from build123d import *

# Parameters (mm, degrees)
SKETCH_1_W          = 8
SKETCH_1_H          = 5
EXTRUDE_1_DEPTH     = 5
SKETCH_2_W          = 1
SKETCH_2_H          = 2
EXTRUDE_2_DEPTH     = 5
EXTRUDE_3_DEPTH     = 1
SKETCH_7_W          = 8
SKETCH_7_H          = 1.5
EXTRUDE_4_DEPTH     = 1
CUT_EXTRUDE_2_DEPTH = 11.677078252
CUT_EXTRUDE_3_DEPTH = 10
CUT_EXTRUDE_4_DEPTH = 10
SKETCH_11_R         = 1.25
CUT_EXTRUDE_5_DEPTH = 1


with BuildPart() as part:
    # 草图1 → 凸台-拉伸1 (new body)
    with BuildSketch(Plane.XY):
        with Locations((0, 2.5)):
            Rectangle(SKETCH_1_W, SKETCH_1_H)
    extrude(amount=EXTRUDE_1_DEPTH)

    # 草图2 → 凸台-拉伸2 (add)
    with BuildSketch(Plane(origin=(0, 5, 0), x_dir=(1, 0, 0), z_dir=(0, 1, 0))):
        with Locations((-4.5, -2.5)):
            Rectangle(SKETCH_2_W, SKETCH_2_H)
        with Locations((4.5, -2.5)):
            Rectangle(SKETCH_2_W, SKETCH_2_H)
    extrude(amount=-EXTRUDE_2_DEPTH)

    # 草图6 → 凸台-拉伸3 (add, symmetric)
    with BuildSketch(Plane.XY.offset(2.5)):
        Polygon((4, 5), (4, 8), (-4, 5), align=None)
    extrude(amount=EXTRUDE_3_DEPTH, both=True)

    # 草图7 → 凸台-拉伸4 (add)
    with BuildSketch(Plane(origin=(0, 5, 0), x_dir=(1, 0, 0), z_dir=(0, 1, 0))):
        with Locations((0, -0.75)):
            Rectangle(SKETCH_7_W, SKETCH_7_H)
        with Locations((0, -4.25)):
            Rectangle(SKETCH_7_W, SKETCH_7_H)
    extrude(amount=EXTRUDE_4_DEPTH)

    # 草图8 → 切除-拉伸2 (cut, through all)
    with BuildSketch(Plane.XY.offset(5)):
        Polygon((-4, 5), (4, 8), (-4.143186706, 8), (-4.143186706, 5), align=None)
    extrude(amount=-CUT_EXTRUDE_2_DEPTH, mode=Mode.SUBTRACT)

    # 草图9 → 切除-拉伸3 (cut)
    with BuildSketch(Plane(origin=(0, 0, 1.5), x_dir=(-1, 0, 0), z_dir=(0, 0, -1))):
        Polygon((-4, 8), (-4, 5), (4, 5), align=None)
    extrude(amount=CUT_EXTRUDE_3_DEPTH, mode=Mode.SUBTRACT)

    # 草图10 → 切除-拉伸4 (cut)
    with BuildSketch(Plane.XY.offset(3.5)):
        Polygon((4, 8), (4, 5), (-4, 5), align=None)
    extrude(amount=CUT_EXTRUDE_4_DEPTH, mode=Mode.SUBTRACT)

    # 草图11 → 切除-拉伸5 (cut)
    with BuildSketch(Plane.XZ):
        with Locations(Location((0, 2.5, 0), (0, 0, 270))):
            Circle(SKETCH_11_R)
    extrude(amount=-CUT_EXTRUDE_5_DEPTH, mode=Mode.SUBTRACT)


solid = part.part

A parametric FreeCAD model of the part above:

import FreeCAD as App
import Part
import Sketcher
Q = App.Units.Quantity

doc = App.newDocument("Part")
params = doc.addObject("Spreadsheet::Sheet", "Params")
for row, (alias, value) in enumerate([
    ("sketch1_width", "8 mm"),
    ("sketch1_height", "5 mm"),
    ("pad1_length", "5 mm"),
    ("sketch2_width", "1 mm"),
    ("sketch2_height", "2 mm"),
    ("pad2_length", "5 mm"),
    ("sketch3_width", "8 mm"),
    ("sketch3_height", "3 mm"),
    ("pad3_length", "2 mm"),
    ("sketch4_width", "8 mm"),
    ("sketch4_height", "1.5 mm"),
    ("pad4_length", "1 mm"),
    ("sketch5_height", "3 mm"),
    ("sketch6_width", "8 mm"),
    ("sketch6_height", "3 mm"),
    ("pocket2_length", "10 mm"),
    ("sketch7_width", "8 mm"),
    ("sketch7_height", "3 mm"),
    ("pocket3_length", "10 mm"),
    ("sketch8_diameter", "2.5 mm"),
    ("pocket4_length", "1 mm"),
], start=1):
    params.set(f"A{row}", alias)
    params.set(f"B{row}", "=" + value)
    params.setAlias(f"B{row}", alias)

body = doc.addObject("PartDesign::Body", "Body")

sketch1 = doc.addObject("Sketcher::SketchObject", "Sketch")
body.addObject(sketch1)
sketch1.AttachmentSupport = (doc.XY_Plane, [""])
sketch1.MapMode = "FlatFace"
sketch1.addGeometry([
    Part.LineSegment(App.Vector(-4, 5, 0), App.Vector(-4, 0, 0)),
    Part.LineSegment(App.Vector(-4, 0, 0), App.Vector(4, 0, 0)),
    Part.LineSegment(App.Vector(4, 0, 0), App.Vector(4, 5, 0)),
    Part.LineSegment(App.Vector(4, 5, 0), App.Vector(-4, 5, 0)),
], False)
sketch1.addConstraint([
    Sketcher.Constraint("Coincident", 0, 2, 1, 1),
    Sketcher.Constraint("Coincident", 1, 2, 2, 1),
    Sketcher.Constraint("Coincident", 2, 2, 3, 1),
    Sketcher.Constraint("Coincident", 3, 2, 0, 1),
    Sketcher.Constraint("Vertical", 0),
    Sketcher.Constraint("Horizontal", 1),
    Sketcher.Constraint("Vertical", 2),
    Sketcher.Constraint("Horizontal", 3),
    Sketcher.Constraint("Symmetric", 0, 2, 1, 2, -1, 1),
    Sketcher.Constraint("DistanceX", 1, 1, 1, 2, Q("8 mm")),
    Sketcher.Constraint("DistanceY", 0, 2, 0, 1, Q("5 mm")),
])
sketch1.setExpression("Constraints[9]", "Params.sketch1_width")
sketch1.setExpression("Constraints[10]", "Params.sketch1_height")
pad1 = doc.addObject("PartDesign::Pad", "Pad")
body.addObject(pad1)
pad1.Profile = sketch1
pad1.setExpression("Length", "Params.pad1_length")

sketch2 = doc.addObject("Sketcher::SketchObject", "Sketch001")
body.addObject(sketch2)
sketch2.AttachmentSupport = (doc.XZ_Plane, [""])
sketch2.MapMode = "FlatFace"
sketch2.AttachmentOffset = App.Placement(App.Vector(0, 0, -5), App.Rotation())
sketch2.addGeometry([
    Part.LineSegment(App.Vector(-5, 1.5, 0), App.Vector(-5, 3.5, 0)),
    Part.LineSegment(App.Vector(-5, 3.5, 0), App.Vector(-4, 3.5, 0)),
    Part.LineSegment(App.Vector(-4, 3.5, 0), App.Vector(-4, 1.5, 0)),
    Part.LineSegment(App.Vector(-4, 1.5, 0), App.Vector(-5, 1.5, 0)),
    Part.LineSegment(App.Vector(4, 1.5, 0), App.Vector(4, 3.5, 0)),
    Part.LineSegment(App.Vector(4, 3.5, 0), App.Vector(5, 3.5, 0)),
    Part.LineSegment(App.Vector(5, 3.5, 0), App.Vector(5, 1.5, 0)),
    Part.LineSegment(App.Vector(5, 1.5, 0), App.Vector(4, 1.5, 0)),
], False)
sketch2.addConstraint([
    Sketcher.Constraint("Coincident", 0, 2, 1, 1),
    Sketcher.Constraint("Coincident", 1, 2, 2, 1),
    Sketcher.Constraint("Coincident", 2, 2, 3, 1),
    Sketcher.Constraint("Coincident", 3, 2, 0, 1),
    Sketcher.Constraint("Coincident", 4, 2, 5, 1),
    Sketcher.Constraint("Coincident", 5, 2, 6, 1),
    Sketcher.Constraint("Coincident", 6, 2, 7, 1),
    Sketcher.Constraint("Coincident", 7, 2, 4, 1),
    Sketcher.Constraint("Vertical", 0),
    Sketcher.Constraint("Horizontal", 1),
    Sketcher.Constraint("Vertical", 2),
    Sketcher.Constraint("Horizontal", 3),
    Sketcher.Constraint("Vertical", 4),
    Sketcher.Constraint("Horizontal", 5),
    Sketcher.Constraint("Vertical", 6),
    Sketcher.Constraint("Horizontal", 7),
    Sketcher.Constraint("Symmetric", 1, 2, 4, 2, -2),
    Sketcher.Constraint("Symmetric", 3, 2, 6, 2, -2),
    Sketcher.Constraint("DistanceX", 1, 1, 1, 2, Q("1 mm")),
    Sketcher.Constraint("DistanceY", 0, 1, 0, 2, Q("2 mm")),
    Sketcher.Constraint("DistanceX", 0, 2, -1, 1, Q("5 mm")),
    Sketcher.Constraint("DistanceY", -1, 1, 0, 2, Q("3.5 mm")),
])
sketch2.setExpression("Constraints[18]", "Params.sketch2_width")
sketch2.setExpression("Constraints[19]", "Params.sketch2_height")
pad2 = doc.addObject("PartDesign::Pad", "Pad001")
body.addObject(pad2)
pad2.Profile = sketch2
pad2.setExpression("Length", "Params.pad2_length")

sketch3 = doc.addObject("Sketcher::SketchObject", "Sketch002")
body.addObject(sketch3)
sketch3.AttachmentSupport = (doc.XY_Plane, [""])
sketch3.MapMode = "FlatFace"
sketch3.AttachmentOffset = App.Placement(App.Vector(0, 0, 2.5), App.Rotation())
sketch3.addGeometry([
    Part.LineSegment(App.Vector(4, 5, 0), App.Vector(4, 8, 0)),
    Part.LineSegment(App.Vector(4, 8, 0), App.Vector(-4, 5, 0)),
    Part.LineSegment(App.Vector(-4, 5, 0), App.Vector(4, 5, 0)),
], False)
sketch3.addConstraint([
    Sketcher.Constraint("Coincident", 0, 2, 1, 1),
    Sketcher.Constraint("Coincident", 1, 2, 2, 1),
    Sketcher.Constraint("Coincident", 2, 2, 0, 1),
    Sketcher.Constraint("Vertical", 0),
    Sketcher.Constraint("Horizontal", 2),
    Sketcher.Constraint("DistanceX", 2, 1, 2, 2, Q("8 mm")),
    Sketcher.Constraint("DistanceY", 0, 1, 0, 2, Q("3 mm")),
    Sketcher.Constraint("DistanceX", -1, 1, 0, 2, Q("4 mm")),
    Sketcher.Constraint("DistanceY", -1, 1, 0, 2, Q("8 mm")),
])
sketch3.setExpression("Constraints[5]", "Params.sketch3_width")
sketch3.setExpression("Constraints[6]", "Params.sketch3_height")
pad3 = doc.addObject("PartDesign::Pad", "Pad002")
body.addObject(pad3)
pad3.Profile = sketch3
pad3.setExpression("Length", "Params.pad3_length")
pad3.Midplane = True

sketch4 = doc.addObject("Sketcher::SketchObject", "Sketch003")
body.addObject(sketch4)
sketch4.AttachmentSupport = (doc.XZ_Plane, [""])
sketch4.MapMode = "FlatFace"
sketch4.AttachmentOffset = App.Placement(App.Vector(0, 0, -5), App.Rotation())
sketch4.addGeometry([
    Part.LineSegment(App.Vector(-4, 0, 0), App.Vector(-4, 1.5, 0)),
    Part.LineSegment(App.Vector(-4, 1.5, 0), App.Vector(4, 1.5, 0)),
    Part.LineSegment(App.Vector(4, 1.5, 0), App.Vector(4, 0, 0)),
    Part.LineSegment(App.Vector(4, 0, 0), App.Vector(-4, 0, 0)),
    Part.LineSegment(App.Vector(-4, 3.5, 0), App.Vector(-4, 5, 0)),
    Part.LineSegment(App.Vector(-4, 5, 0), App.Vector(4, 5, 0)),
    Part.LineSegment(App.Vector(4, 5, 0), App.Vector(4, 3.5, 0)),
    Part.LineSegment(App.Vector(4, 3.5, 0), App.Vector(-4, 3.5, 0)),
], False)
sketch4.addConstraint([
    Sketcher.Constraint("Coincident", 0, 2, 1, 1),
    Sketcher.Constraint("Coincident", 1, 2, 2, 1),
    Sketcher.Constraint("Coincident", 2, 2, 3, 1),
    Sketcher.Constraint("Coincident", 3, 2, 0, 1),
    Sketcher.Constraint("Coincident", 4, 2, 5, 1),
    Sketcher.Constraint("Coincident", 5, 2, 6, 1),
    Sketcher.Constraint("Coincident", 6, 2, 7, 1),
    Sketcher.Constraint("Coincident", 7, 2, 4, 1),
    Sketcher.Constraint("Vertical", 0),
    Sketcher.Constraint("Horizontal", 1),
    Sketcher.Constraint("Vertical", 2),
    Sketcher.Constraint("Horizontal", 3),
    Sketcher.Constraint("Vertical", 4),
    Sketcher.Constraint("Horizontal", 5),
    Sketcher.Constraint("Vertical", 6),
    Sketcher.Constraint("Horizontal", 7),
    Sketcher.Constraint("Symmetric", 2, 2, 3, 2, -1, 1),
    Sketcher.Constraint("Vertical", 3, 2, 4, 2),
    Sketcher.Constraint("Vertical", 2, 2, 5, 2),
    Sketcher.Constraint("Equal", 2, 4),
    Sketcher.Constraint("DistanceX", 1, 1, 1, 2, Q("8 mm")),
    Sketcher.Constraint("DistanceY", 0, 1, 0, 2, Q("1.5 mm")),
    Sketcher.Constraint("DistanceY", -1, 1, 4, 2, Q("5 mm")),
])
sketch4.setExpression("Constraints[20]", "Params.sketch4_width")
sketch4.setExpression("Constraints[21]", "Params.sketch4_height")
pad4 = doc.addObject("PartDesign::Pad", "Pad003")
body.addObject(pad4)
pad4.Profile = sketch4
pad4.setExpression("Length", "Params.pad4_length")
pad4.Reversed = True

sketch5 = doc.addObject("Sketcher::SketchObject", "Sketch004")
body.addObject(sketch5)
sketch5.AttachmentSupport = (doc.XY_Plane, [""])
sketch5.MapMode = "FlatFace"
sketch5.AttachmentOffset = App.Placement(App.Vector(0, 0, 5), App.Rotation())
sketch5.addGeometry([
    Part.LineSegment(App.Vector(-4, 5, 0), App.Vector(4, 8, 0)),
    Part.LineSegment(App.Vector(4, 8, 0), App.Vector(-4.143187, 8, 0)),
    Part.LineSegment(App.Vector(-4.143187, 8, 0), App.Vector(-4.143187, 5, 0)),
    Part.LineSegment(App.Vector(-4.143187, 5, 0), App.Vector(-4, 5, 0)),
], False)
sketch5.addConstraint([
    Sketcher.Constraint("Coincident", 0, 2, 1, 1),
    Sketcher.Constraint("Coincident", 1, 2, 2, 1),
    Sketcher.Constraint("Coincident", 2, 2, 3, 1),
    Sketcher.Constraint("Coincident", 3, 2, 0, 1),
    Sketcher.Constraint("Horizontal", 1),
    Sketcher.Constraint("Vertical", 2),
    Sketcher.Constraint("Horizontal", 3),
    Sketcher.Constraint("DistanceY", 2, 2, 2, 1, Q("3 mm")),
    Sketcher.Constraint("DistanceX", -1, 1, 0, 2, Q("4 mm")),
    Sketcher.Constraint("DistanceY", -1, 1, 0, 2, Q("8 mm")),
    Sketcher.Constraint("DistanceX", 3, 2, -1, 1, Q("4 mm")),
    Sketcher.Constraint("DistanceX", 1, 2, 1, 1, Q("8.143187 mm")),
])
sketch5.setExpression("Constraints[7]", "Params.sketch5_height")
pocket1 = doc.addObject("PartDesign::Pocket", "Pocket")
body.addObject(pocket1)
pocket1.Profile = sketch5
pocket1.Type = "ThroughAll"

sketch6 = doc.addObject("Sketcher::SketchObject", "Sketch005")
body.addObject(sketch6)
sketch6.AttachmentSupport = (doc.XY_Plane, [""])
sketch6.MapMode = "FlatFace"
sketch6.AttachmentOffset = App.Placement(App.Vector(0, 0, 1.5), App.Rotation())
sketch6.addGeometry([
    Part.LineSegment(App.Vector(4, 8, 0), App.Vector(4, 5, 0)),
    Part.LineSegment(App.Vector(4, 5, 0), App.Vector(-4, 5, 0)),
    Part.LineSegment(App.Vector(-4, 5, 0), App.Vector(4, 8, 0)),
], False)
sketch6.addConstraint([
    Sketcher.Constraint("Coincident", 0, 2, 1, 1),
    Sketcher.Constraint("Coincident", 1, 2, 2, 1),
    Sketcher.Constraint("Coincident", 2, 2, 0, 1),
    Sketcher.Constraint("Vertical", 0),
    Sketcher.Constraint("Horizontal", 1),
    Sketcher.Constraint("DistanceX", 1, 2, 1, 1, Q("8 mm")),
    Sketcher.Constraint("DistanceY", 0, 2, 0, 1, Q("3 mm")),
    Sketcher.Constraint("DistanceX", -1, 1, 0, 2, Q("4 mm")),
    Sketcher.Constraint("DistanceY", -1, 1, 0, 2, Q("5 mm")),
])
sketch6.setExpression("Constraints[5]", "Params.sketch6_width")
sketch6.setExpression("Constraints[6]", "Params.sketch6_height")
pocket2 = doc.addObject("PartDesign::Pocket", "Pocket001")
body.addObject(pocket2)
pocket2.Profile = sketch6
pocket2.setExpression("Length", "Params.pocket2_length")

sketch7 = doc.addObject("Sketcher::SketchObject", "Sketch006")
body.addObject(sketch7)
sketch7.AttachmentSupport = (doc.XY_Plane, [""])
sketch7.MapMode = "FlatFace"
sketch7.AttachmentOffset = App.Placement(App.Vector(0, 0, 3.5), App.Rotation())
sketch7.addGeometry([
    Part.LineSegment(App.Vector(4, 5, 0), App.Vector(4, 8, 0)),
    Part.LineSegment(App.Vector(4, 8, 0), App.Vector(-4, 5, 0)),
    Part.LineSegment(App.Vector(-4, 5, 0), App.Vector(4, 5, 0)),
], False)
sketch7.addConstraint([
    Sketcher.Constraint("Coincident", 0, 2, 1, 1),
    Sketcher.Constraint("Coincident", 1, 2, 2, 1),
    Sketcher.Constraint("Coincident", 2, 2, 0, 1),
    Sketcher.Constraint("Vertical", 0),
    Sketcher.Constraint("Horizontal", 2),
    Sketcher.Constraint("DistanceX", 2, 1, 2, 2, Q("8 mm")),
    Sketcher.Constraint("DistanceY", 0, 1, 0, 2, Q("3 mm")),
    Sketcher.Constraint("DistanceX", -1, 1, 0, 2, Q("4 mm")),
    Sketcher.Constraint("DistanceY", -1, 1, 0, 2, Q("8 mm")),
])
sketch7.setExpression("Constraints[5]", "Params.sketch7_width")
sketch7.setExpression("Constraints[6]", "Params.sketch7_height")
pocket3 = doc.addObject("PartDesign::Pocket", "Pocket002")
body.addObject(pocket3)
pocket3.Profile = sketch7
pocket3.setExpression("Length", "Params.pocket3_length")
pocket3.Reversed = True

sketch8 = doc.addObject("Sketcher::SketchObject", "Sketch007")
body.addObject(sketch8)
sketch8.AttachmentSupport = (doc.XZ_Plane, [""])
sketch8.MapMode = "FlatFace"
sketch8.addGeometry(Part.Circle(App.Vector(0, 2.5, 0), App.Vector(0, 0, 1), 1.25), False)
sketch8.addConstraint([
    Sketcher.Constraint("PointOnObject", 0, 3, -2),
    Sketcher.Constraint("Diameter", 0, Q("2.5 mm")),
    Sketcher.Constraint("DistanceY", -1, 1, 0, 3, Q("2.5 mm")),
])
sketch8.setExpression("Constraints[1]", "Params.sketch8_diameter")
pocket4 = doc.addObject("PartDesign::Pocket", "Pocket003")
body.addObject(pocket4)
pocket4.Profile = sketch8
pocket4.setExpression("Length", "Params.pocket4_length")

doc.recompute()
